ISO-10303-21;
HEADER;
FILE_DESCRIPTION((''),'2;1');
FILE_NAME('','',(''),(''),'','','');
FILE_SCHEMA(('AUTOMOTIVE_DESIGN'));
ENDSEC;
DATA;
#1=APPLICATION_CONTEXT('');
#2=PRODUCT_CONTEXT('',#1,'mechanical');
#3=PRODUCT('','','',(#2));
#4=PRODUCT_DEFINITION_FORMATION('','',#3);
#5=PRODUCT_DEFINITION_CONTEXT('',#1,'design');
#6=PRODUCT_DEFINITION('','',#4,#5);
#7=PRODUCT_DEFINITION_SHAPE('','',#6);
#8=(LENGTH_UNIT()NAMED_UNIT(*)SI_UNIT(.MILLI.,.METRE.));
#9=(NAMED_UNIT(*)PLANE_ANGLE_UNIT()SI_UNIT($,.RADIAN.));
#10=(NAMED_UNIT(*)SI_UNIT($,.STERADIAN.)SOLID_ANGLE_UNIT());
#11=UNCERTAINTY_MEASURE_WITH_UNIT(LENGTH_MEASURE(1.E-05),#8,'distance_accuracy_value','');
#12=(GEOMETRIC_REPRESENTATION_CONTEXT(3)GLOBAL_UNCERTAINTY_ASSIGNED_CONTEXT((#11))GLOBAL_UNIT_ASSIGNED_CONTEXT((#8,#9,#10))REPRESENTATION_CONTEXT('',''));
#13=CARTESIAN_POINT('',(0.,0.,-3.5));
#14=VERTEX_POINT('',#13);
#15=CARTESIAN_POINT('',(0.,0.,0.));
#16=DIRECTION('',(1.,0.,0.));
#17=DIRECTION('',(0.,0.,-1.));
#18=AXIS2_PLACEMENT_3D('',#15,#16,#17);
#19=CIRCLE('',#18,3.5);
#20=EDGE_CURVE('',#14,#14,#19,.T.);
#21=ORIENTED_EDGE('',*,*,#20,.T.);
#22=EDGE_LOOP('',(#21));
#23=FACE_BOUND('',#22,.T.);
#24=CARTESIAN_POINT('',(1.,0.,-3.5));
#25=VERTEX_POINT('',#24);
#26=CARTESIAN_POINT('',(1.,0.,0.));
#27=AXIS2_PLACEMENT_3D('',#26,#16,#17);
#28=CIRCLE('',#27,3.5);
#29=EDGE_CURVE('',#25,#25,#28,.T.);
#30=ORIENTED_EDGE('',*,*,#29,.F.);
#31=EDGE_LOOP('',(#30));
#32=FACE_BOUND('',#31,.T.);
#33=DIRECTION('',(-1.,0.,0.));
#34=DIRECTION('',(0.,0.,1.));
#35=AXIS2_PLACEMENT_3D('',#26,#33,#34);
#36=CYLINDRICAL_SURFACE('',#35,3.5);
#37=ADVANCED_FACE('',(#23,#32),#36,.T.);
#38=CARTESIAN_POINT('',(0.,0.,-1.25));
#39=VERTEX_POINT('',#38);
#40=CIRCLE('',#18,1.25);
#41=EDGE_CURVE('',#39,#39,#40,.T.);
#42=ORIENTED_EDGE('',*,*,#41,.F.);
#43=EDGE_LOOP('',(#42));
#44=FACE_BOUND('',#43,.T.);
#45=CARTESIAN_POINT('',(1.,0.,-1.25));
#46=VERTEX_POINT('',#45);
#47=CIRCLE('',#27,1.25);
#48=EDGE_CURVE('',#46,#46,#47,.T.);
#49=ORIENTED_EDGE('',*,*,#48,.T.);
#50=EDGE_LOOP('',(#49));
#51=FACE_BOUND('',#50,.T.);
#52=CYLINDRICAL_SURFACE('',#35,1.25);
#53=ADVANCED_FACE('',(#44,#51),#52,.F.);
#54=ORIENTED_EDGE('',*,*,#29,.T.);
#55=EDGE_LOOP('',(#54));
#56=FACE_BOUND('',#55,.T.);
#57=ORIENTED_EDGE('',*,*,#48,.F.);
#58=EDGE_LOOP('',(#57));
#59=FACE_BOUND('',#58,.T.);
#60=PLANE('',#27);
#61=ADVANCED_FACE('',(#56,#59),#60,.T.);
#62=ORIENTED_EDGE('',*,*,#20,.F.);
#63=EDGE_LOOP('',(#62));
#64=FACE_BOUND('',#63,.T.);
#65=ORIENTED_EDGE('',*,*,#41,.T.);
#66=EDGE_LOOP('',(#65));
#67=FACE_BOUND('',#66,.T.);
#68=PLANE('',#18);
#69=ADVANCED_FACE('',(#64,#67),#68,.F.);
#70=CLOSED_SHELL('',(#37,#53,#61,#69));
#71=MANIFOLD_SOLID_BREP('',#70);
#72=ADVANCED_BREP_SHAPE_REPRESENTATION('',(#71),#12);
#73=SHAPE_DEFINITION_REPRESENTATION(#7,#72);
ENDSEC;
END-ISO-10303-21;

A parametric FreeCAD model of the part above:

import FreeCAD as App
import Part
import Sketcher

doc = App.newDocument("Part")
body = doc.addObject("PartDesign::Body", "Body")

# Sketch on YZ plane
sketch1 = doc.addObject("Sketcher::SketchObject", "Sketch")
body.addObject(sketch1)
sketch1.AttachmentSupport = (doc.YZ_Plane, [""])
sketch1.MapMode = "FlatFace"
sketch1.addGeometry(Part.Circle(App.Vector(0, 0, 0), App.Vector(0, 0, 1), 3.5), False)
sketch1.addGeometry(Part.Circle(App.Vector(0, 0, 0), App.Vector(0, 0, 1), 1.25), False)
sketch1.addConstraint(Sketcher.Constraint("Coincident", 0, 3, -1, 1))
sketch1.addConstraint(Sketcher.Constraint("Coincident", 1, 3, -1, 1))
sketch1.addConstraint(Sketcher.Constraint("Diameter", 0, 7.0))
sketch1.addConstraint(Sketcher.Constraint("Diameter", 1, 2.5))
pad1 = doc.addObject("PartDesign::Pad", "Pad")
body.addObject(pad1)
pad1.Profile = sketch1
pad1.Length = 1

doc.recompute()
